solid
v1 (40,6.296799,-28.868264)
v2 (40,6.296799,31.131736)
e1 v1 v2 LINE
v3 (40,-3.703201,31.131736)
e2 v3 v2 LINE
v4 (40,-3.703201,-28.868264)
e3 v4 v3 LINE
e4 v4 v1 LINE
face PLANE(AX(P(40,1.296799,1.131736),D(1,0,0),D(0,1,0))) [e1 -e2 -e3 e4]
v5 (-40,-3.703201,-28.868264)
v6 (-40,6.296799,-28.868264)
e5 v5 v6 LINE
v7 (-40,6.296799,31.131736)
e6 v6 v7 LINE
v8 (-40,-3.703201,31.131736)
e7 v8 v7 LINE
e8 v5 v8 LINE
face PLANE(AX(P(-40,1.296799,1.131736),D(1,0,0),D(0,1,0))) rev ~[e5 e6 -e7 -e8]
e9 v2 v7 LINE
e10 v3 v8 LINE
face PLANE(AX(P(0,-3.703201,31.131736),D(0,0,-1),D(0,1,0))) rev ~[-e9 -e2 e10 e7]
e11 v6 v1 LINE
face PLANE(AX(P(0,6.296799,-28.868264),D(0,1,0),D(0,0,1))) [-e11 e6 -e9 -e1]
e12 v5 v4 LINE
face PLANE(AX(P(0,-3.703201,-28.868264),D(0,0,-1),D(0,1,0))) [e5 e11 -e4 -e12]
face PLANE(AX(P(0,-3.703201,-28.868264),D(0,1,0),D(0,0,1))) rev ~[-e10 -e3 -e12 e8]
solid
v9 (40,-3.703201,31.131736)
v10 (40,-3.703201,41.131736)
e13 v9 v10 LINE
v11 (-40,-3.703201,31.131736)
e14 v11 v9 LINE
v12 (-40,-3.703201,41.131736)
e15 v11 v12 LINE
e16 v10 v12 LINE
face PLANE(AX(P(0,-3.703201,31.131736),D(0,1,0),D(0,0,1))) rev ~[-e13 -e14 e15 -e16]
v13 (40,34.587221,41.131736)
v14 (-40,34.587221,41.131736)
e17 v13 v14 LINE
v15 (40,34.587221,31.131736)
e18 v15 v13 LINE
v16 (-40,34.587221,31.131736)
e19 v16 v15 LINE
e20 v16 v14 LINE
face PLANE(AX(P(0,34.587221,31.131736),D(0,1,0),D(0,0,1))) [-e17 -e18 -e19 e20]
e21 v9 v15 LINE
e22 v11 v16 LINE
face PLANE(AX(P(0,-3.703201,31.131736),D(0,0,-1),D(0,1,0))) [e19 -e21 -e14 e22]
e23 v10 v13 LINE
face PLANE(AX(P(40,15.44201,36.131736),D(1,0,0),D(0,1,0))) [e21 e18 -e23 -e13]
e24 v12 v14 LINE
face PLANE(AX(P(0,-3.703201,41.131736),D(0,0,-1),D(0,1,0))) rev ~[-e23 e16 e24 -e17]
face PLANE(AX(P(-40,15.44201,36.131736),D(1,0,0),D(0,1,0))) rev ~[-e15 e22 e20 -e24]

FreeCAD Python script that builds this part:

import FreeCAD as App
import Part
import Sketcher

V = App.Vector

doc = App.newDocument("Part")
body = doc.addObject("PartDesign::Body", "Body")

# Sketch on YZ plane
sketch1 = body.newObject("Sketcher::SketchObject", "Sketch")
sketch1.AttachmentSupport = (doc.getObject("YZ_Plane"), [""])
sketch1.MapMode = "FlatFace"
sketch1.addGeometry(Part.LineSegment(V(-4, 31, 0), V(-4, -29, 0)), False)
sketch1.addGeometry(Part.LineSegment(V(-4, -29, 0), V(6, -29, 0)), False)
sketch1.addGeometry(Part.LineSegment(V(6, -29, 0), V(6, 31, 0)), False)
sketch1.addGeometry(Part.LineSegment(V(6, 31, 0), V(-4, 31, 0)), False)
sketch1.addConstraint(Sketcher.Constraint("Coincident", 0, 2, 1, 1))
sketch1.addConstraint(Sketcher.Constraint("Coincident", 1, 2, 2, 1))
sketch1.addConstraint(Sketcher.Constraint("Coincident", 2, 2, 3, 1))
sketch1.addConstraint(Sketcher.Constraint("Coincident", 3, 2, 0, 1))
sketch1.addConstraint(Sketcher.Constraint("Vertical", 0))
sketch1.addConstraint(Sketcher.Constraint("Horizontal", 1))
sketch1.addConstraint(Sketcher.Constraint("Vertical", 2))
sketch1.addConstraint(Sketcher.Constraint("Horizontal", 3))
sketch1.addConstraint(Sketcher.Constraint("DistanceX", 1, 1, 1, 2, 10.0))
sketch1.addConstraint(Sketcher.Constraint("DistanceY", 0, 2, 0, 1, 60.0))
sketch1.addConstraint(Sketcher.Constraint("DistanceX", 0, 2, -1, 1, 3.703201))
sketch1.addConstraint(Sketcher.Constraint("DistanceY", 0, 2, -1, 1, 28.868264))
pad1 = body.newObject("PartDesign::Pad", "Pad")
pad1.Profile = sketch1
pad1.Type = "TwoLengths"
pad1.Length = 40
pad1.Length2 = 40
body2 = doc.addObject("PartDesign::Body", "Body001")

# Sketch on YZ plane
sketch2 = body2.newObject("Sketcher::SketchObject", "Sketch001")
sketch2.AttachmentSupport = (doc.getObject("YZ_Plane001"), [""])
sketch2.MapMode = "FlatFace"
sketch2.addGeometry(Part.LineSegment(V(-4, 41, 0), V(-4, 31, 0)), False)
sketch2.addGeometry(Part.LineSegment(V(-4, 31, 0), V(35, 31, 0)), False)
sketch2.addGeometry(Part.LineSegment(V(35, 31, 0), V(35, 41, 0)), False)
sketch2.addGeometry(Part.LineSegment(V(35, 41, 0), V(-4, 41, 0)), False)
sketch2.addConstraint(Sketcher.Constraint("Coincident", 0, 2, 1, 1))
sketch2.addConstraint(Sketcher.Constraint("Coincident", 1, 2, 2, 1))
sketch2.addConstraint(Sketcher.Constraint("Coincident", 2, 2, 3, 1))
sketch2.addConstraint(Sketcher.Constraint("Coincident", 3, 2, 0, 1))
sketch2.addConstraint(Sketcher.Constraint("Vertical", 0))
sketch2.addConstraint(Sketcher.Constraint("Horizontal", 1))
sketch2.addConstraint(Sketcher.Constraint("Vertical", 2))
sketch2.addConstraint(Sketcher.Constraint("Horizontal", 3))
sketch2.addConstraint(Sketcher.Constraint("DistanceY", 0, 2, 0, 1, 10.0))
sketch2.addConstraint(Sketcher.Constraint("DistanceX", 0, 2, -1, 1, 3.703201))
sketch2.addConstraint(Sketcher.Constraint("DistanceX", 1, 1, 1, 2, 38.290422))
sketch2.addConstraint(Sketcher.Constraint("DistanceY", -1, 1, 0, 2, 31.131736))
pad2 = body2.newObject("PartDesign::Pad", "Pad001")
pad2.Profile = sketch2
pad2.Type = "TwoLengths"
pad2.Length = 40
pad2.Length2 = 40

doc.recompute()
